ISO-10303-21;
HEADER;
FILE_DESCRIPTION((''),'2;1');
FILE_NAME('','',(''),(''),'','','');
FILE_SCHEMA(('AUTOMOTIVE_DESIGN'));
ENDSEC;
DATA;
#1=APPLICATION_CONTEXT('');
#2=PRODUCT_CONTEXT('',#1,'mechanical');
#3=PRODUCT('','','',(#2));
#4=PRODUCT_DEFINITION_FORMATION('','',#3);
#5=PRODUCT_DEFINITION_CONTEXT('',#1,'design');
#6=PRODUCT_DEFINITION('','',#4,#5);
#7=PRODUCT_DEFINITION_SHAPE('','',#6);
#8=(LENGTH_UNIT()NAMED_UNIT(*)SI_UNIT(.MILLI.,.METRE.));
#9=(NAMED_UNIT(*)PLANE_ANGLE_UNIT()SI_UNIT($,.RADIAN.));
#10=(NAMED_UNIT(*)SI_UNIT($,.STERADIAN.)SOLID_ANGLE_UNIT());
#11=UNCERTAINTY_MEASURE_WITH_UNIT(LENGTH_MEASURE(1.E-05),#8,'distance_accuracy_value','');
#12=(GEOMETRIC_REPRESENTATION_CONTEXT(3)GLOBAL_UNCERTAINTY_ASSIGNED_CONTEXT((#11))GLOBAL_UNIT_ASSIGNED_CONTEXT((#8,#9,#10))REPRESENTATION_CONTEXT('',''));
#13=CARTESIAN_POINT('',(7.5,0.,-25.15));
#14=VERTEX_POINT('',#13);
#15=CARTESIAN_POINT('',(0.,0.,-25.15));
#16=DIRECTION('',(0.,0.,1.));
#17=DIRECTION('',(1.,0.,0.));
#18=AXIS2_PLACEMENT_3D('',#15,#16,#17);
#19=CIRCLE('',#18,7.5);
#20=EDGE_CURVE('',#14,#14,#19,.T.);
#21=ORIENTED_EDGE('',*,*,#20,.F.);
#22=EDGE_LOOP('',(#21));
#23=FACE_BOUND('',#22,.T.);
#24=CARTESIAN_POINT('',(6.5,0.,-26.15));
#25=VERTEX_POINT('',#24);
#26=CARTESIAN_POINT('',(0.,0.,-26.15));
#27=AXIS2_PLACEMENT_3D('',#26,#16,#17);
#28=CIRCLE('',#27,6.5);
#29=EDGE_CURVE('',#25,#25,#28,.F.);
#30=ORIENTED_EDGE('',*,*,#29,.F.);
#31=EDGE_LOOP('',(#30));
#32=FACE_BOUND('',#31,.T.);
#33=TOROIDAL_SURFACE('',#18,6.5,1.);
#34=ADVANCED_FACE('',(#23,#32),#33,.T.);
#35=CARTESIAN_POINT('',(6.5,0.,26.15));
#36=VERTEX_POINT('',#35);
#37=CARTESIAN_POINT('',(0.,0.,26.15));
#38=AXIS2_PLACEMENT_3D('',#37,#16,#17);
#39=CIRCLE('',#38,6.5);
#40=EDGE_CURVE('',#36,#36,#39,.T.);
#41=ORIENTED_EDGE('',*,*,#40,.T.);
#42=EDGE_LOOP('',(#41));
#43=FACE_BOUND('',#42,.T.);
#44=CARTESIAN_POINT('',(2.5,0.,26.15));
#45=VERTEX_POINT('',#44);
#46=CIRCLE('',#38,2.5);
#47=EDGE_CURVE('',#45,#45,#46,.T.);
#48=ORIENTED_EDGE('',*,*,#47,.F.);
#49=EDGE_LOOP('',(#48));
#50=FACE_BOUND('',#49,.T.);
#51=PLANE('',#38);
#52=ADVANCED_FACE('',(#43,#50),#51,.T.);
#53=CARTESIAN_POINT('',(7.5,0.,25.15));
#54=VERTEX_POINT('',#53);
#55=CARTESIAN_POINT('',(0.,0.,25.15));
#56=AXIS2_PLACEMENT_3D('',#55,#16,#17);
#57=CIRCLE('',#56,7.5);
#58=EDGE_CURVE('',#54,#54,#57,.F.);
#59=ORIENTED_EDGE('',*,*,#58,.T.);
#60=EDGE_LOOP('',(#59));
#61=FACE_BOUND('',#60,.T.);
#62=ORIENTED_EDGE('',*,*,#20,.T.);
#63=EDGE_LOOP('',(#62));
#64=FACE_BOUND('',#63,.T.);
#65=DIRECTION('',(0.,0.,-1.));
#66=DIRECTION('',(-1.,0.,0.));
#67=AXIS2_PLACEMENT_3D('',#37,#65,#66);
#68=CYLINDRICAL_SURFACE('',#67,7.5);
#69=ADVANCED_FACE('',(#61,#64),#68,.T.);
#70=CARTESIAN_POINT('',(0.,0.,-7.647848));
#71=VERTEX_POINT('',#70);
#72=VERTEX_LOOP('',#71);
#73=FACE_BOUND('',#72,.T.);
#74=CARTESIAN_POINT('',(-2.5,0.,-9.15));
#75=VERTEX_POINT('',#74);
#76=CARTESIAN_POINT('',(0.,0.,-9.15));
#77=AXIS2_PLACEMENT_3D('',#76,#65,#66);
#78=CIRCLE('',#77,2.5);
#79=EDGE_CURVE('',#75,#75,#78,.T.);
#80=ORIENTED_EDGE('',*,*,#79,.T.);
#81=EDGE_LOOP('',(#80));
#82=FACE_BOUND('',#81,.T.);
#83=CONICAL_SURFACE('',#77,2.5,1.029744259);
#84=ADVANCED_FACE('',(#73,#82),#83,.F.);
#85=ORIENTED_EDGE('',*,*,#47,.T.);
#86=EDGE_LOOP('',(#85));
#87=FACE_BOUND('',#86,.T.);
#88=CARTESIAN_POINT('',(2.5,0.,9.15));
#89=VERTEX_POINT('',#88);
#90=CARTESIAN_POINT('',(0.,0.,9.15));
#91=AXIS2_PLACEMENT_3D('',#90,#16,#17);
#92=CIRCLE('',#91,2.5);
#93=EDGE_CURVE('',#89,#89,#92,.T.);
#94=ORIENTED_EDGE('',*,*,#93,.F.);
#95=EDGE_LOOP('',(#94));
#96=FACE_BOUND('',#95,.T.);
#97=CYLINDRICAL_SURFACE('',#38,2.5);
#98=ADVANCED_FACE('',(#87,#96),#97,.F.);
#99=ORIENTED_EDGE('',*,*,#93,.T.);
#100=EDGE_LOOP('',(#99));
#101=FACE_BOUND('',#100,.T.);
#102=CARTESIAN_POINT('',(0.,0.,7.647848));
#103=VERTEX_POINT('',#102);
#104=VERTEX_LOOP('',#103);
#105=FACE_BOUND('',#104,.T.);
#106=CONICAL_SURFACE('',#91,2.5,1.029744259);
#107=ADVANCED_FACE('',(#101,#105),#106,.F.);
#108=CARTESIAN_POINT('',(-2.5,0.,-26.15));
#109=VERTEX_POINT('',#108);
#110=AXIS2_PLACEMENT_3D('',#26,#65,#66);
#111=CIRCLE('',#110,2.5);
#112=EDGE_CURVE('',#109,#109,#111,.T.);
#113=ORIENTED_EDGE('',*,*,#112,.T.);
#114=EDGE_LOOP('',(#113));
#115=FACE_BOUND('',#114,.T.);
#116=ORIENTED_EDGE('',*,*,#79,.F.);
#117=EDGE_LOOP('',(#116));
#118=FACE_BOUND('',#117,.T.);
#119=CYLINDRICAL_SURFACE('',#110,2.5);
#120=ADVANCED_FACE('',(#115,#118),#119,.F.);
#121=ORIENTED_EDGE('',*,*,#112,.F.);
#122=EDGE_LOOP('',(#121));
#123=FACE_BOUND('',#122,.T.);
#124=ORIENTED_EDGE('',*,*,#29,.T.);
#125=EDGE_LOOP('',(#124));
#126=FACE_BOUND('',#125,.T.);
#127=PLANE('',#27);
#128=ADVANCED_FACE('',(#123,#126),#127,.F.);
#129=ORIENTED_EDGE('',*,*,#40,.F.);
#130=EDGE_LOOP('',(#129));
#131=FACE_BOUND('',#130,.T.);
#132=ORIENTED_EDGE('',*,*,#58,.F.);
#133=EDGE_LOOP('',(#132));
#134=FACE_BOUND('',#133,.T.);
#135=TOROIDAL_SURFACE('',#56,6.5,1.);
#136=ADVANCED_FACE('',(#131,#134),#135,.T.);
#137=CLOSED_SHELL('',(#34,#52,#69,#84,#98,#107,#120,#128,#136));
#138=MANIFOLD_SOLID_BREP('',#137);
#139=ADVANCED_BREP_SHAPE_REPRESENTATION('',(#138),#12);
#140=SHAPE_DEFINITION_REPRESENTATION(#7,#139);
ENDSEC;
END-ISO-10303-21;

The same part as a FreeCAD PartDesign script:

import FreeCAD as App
import Part
import Sketcher

V = App.Vector
Q = App.Units.Quantity


def edges_at(feature, points):
    """Names of the edges that pass closest to the given points."""
    edges = feature.Shape.Edges
    near = lambda p: min(range(len(edges)), key=lambda i: edges[i].distToShape(Part.Vertex(*p))[0])
    return sorted({f"Edge{near(p) + 1}" for p in points})

doc = App.newDocument("Part")
body = doc.addObject("PartDesign::Body", "Body")

# Sketch on XY plane
sketch1 = body.newObject("Sketcher::SketchObject", "Sketch")
sketch1.AttachmentSupport = (doc.getObject("XY_Plane"), [""])
sketch1.MapMode = "FlatFace"
sketch1.addGeometry(Part.Circle(V(0, 0, 0), V(0, 0, 1), 8), False)
sketch1.addConstraint([
    Sketcher.Constraint("Coincident", 0, 3, -1, 1),
    Sketcher.Constraint("Diameter", 0, Q("15 mm")),
])
pad1 = body.newObject("PartDesign::Pad", "Pad")
pad1.Profile = sketch1
pad1.Length = 52.3
pad1.Midplane = True

# Sketch on YZ plane
sketch2 = body.newObject("Sketcher::SketchObject", "Sketch001")
sketch2.AttachmentSupport = (doc.getObject("YZ_Plane"), [""])
sketch2.MapMode = "FlatFace"
sketch2.addGeometry([
    Part.LineSegment(V(0, 7.6, 0), V(0, 26.1, 0)),
    Part.LineSegment(V(0, 26.1, 0), V(-2.5, 26.1, 0)),
    Part.LineSegment(V(-2.5, 26.1, 0), V(-2.5, 9.2, 0)),
    Part.LineSegment(V(-2.5, 9.2, 0), V(0, 7.6, 0)),
], False)
sketch2.addConstraint([
    Sketcher.Constraint("Coincident", 0, 2, 1, 1),
    Sketcher.Constraint("Coincident", 1, 2, 2, 1),
    Sketcher.Constraint("Coincident", 2, 2, 3, 1),
    Sketcher.Constraint("Coincident", 3, 2, 0, 1),
    Sketcher.Constraint("Vertical", 0),
    Sketcher.Constraint("Horizontal", 1),
    Sketcher.Constraint("Vertical", 2),
    Sketcher.Constraint("PointOnObject", 0, 2, -2),
    Sketcher.Constraint("DistanceY", 2, 2, 2, 1, Q("17 mm")),
    Sketcher.Constraint("Angle", 3, Q("-31 deg")),
    Sketcher.Constraint("DistanceX", 1, 2, 1, 1, Q("2.5 mm")),
    Sketcher.Constraint("DistanceY", -1, 1, 0, 2, Q("26.15 mm")),
])
groove = body.newObject("PartDesign::Groove", "Groove")
groove.Profile = sketch2
groove.ReferenceAxis = (sketch2, ["V_Axis"])
groove.Angle = 360
doc.recompute()

fillet = body.newObject("PartDesign::Fillet", "Fillet")
fillet.Base = (groove, edges_at(groove, [(-7.5, 0, -26.15), (-7.5, 0, 26.15)]))
fillet.Radius = 1
doc.recompute()

mirrored = body.newObject("PartDesign::Mirrored", "Mirrored")
mirrored.Originals = [groove]
mirrored.MirrorPlane = (doc.getObject("XY_Plane"), [""])
body.Tip = mirrored

doc.recompute()
